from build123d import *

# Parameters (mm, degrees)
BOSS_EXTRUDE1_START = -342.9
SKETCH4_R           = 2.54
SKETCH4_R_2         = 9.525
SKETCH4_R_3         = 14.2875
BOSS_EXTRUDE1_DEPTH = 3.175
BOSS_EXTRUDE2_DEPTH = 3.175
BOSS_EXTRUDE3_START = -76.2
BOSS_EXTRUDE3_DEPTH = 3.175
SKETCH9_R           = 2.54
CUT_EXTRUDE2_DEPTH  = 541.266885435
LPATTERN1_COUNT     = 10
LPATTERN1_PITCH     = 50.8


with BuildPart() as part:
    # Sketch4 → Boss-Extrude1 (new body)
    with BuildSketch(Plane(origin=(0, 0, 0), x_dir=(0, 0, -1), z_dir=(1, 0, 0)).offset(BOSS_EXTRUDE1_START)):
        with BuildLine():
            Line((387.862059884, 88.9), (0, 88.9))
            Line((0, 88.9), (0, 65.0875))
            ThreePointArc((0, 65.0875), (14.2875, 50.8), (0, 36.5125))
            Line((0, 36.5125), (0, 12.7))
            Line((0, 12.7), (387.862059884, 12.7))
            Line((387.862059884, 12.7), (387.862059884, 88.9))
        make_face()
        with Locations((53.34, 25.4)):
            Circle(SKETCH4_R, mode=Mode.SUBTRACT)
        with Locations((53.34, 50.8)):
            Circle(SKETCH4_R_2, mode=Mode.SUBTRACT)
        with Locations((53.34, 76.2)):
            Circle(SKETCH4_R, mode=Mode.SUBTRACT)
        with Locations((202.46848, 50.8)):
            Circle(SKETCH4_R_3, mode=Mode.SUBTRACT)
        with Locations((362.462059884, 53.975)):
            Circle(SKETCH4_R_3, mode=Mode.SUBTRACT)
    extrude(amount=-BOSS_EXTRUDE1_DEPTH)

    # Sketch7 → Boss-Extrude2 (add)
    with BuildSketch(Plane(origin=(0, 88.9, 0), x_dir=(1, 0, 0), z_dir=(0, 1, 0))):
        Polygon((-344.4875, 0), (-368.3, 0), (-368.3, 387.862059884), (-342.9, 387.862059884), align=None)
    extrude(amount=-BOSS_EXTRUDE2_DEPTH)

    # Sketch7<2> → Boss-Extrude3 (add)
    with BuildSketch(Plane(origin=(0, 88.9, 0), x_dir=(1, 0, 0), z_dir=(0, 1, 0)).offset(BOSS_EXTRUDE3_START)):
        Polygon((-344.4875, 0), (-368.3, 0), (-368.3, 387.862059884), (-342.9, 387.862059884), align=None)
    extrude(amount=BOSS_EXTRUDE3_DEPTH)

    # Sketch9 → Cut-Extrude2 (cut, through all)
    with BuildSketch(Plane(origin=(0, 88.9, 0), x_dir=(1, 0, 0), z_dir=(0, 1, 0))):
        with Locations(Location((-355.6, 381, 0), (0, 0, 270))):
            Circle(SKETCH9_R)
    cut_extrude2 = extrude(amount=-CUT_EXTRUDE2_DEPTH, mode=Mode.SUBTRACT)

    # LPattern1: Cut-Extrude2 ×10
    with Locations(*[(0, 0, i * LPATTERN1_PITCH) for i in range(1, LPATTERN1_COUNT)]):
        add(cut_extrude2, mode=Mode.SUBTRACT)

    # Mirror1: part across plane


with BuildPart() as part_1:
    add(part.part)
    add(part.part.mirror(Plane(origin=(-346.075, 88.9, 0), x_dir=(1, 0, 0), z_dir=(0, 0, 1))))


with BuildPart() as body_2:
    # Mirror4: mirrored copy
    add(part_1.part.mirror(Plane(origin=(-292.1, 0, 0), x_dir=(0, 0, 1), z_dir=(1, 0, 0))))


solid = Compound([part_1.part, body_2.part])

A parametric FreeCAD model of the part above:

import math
import FreeCAD as App
import Part
import Sketcher
from FreeCAD import Vector
Q = App.Units.Quantity

doc = App.newDocument("Part")
body = doc.addObject("PartDesign::Body", "Body")

# Sketch on YZ plane
sketch1 = body.newObject("Sketcher::SketchObject", "Sketch")
sketch1.AttachmentSupport = (doc.getObject("YZ_Plane"), [""])
sketch1.MapMode = "FlatFace"
sketch1.AttachmentOffset = App.Placement(Vector(0, 0, -13.5 * 25.4), App.Rotation())
sketch1.addGeometry([
    Part.LineSegment(Vector(88.9, -387.9, 0), Vector(88.9, 0, 0)),  # 0
    Part.LineSegment(Vector(88.9, 0, 0), Vector(65.1, 0, 0)),  # 1
    Part.ArcOfCircle(Part.Circle(Vector(50.8, 0, 0), Vector(0, 0, 1), 14.3), math.radians(180), math.radians(360)),  # 2
    Part.LineSegment(Vector(36.5, 0, 0), Vector(12.7, 0, 0)),  # 3
    Part.LineSegment(Vector(12.7, 0, 0), Vector(12.7, -387.9, 0)),  # 4
    Part.LineSegment(Vector(12.7, -387.9, 0), Vector(88.9, -387.9, 0)),  # 5
    Part.Circle(Vector(25.4, -53.3, 0), Vector(0, 0, 1), 2.5),  # 6
    Part.Circle(Vector(50.8, -53.3, 0), Vector(0, 0, 1), 9.5),  # 7
    Part.Circle(Vector(50.8, -202.5, 0), Vector(0, 0, 1), 14.3),  # 8
    Part.Circle(Vector(76.2, -53.3, 0), Vector(0, 0, 1), 2.5),  # 9
    Part.Circle(Vector(54, -362.5, 0), Vector(0, 0, 1), 14.3),  # 10
], False)
sketch1.addConstraint([
    Sketcher.Constraint("Coincident", 0, 2, 1, 1),
    Sketcher.Constraint("Coincident", 1, 2, 2, 2),
    Sketcher.Constraint("Coincident", 2, 1, 3, 1),
    Sketcher.Constraint("Coincident", 3, 2, 4, 1),
    Sketcher.Constraint("Coincident", 4, 2, 5, 1),
    Sketcher.Constraint("Coincident", 5, 2, 0, 1),
    Sketcher.Constraint("Vertical", 0),
    Sketcher.Constraint("Horizontal", 1),
    Sketcher.Constraint("Horizontal", 3),
    Sketcher.Constraint("Vertical", 4),
    Sketcher.Constraint("Horizontal", 5),
    Sketcher.Constraint("Equal", 2, 8),
    Sketcher.Constraint("Equal", 6, 9),
    Sketcher.Constraint("Equal", 8, 10),
    Sketcher.Constraint("PointOnObject", 2, 3, -1),
    Sketcher.Constraint("PointOnObject", 0, 2, -1),
    Sketcher.Constraint("PointOnObject", 2, 1, -1),
    Sketcher.Constraint("Horizontal", 6, 3, 7, 3),
    Sketcher.Constraint("Horizontal", 7, 3, 9, 3),
    Sketcher.Constraint("Vertical", 2, 3, 7, 3),
    Sketcher.Constraint("Vertical", 7, 3, 8, 3),
    Sketcher.Constraint("Equal", 1, 3),
    Sketcher.Constraint("Diameter", 6, Q("0.2 in")),
    Sketcher.Constraint("Diameter", 7, Q("0.75 in")),
    Sketcher.Constraint("DistanceX", 5, 1, 5, 2, Q("3 in")),
    Sketcher.Constraint("Diameter", 8, Q("1.125 in")),
    Sketcher.Constraint("DistanceX", -1, 1, 2, 3, Q("2 in")),
    Sketcher.Constraint("DistanceX", -1, 1, 6, 3, Q("1 in")),
    Sketcher.Constraint("DistanceX", -1, 1, 9, 3, Q("3 in")),
    Sketcher.Constraint("DistanceY", 4, 2, 10, 3, Q("1 in")),
    Sketcher.Constraint("DistanceY", 6, 3, -1, 1, Q("2.1 in")),
    Sketcher.Constraint("DistanceX", -1, 1, 10, 3, Q("2.125 in")),
    Sketcher.Constraint("DistanceY", 8, 3, -1, 1, Q("7.9712 in")),
    Sketcher.Constraint("DistanceY", 0, 1, 0, 2, 387.86206),
])
pad1 = body.newObject("PartDesign::Pad", "Pad")
pad1.Profile = sketch1
pad1.Length = Q("0.125 in")
pad1.Reversed = True

# Sketch on XZ plane
sketch2 = body.newObject("Sketcher::SketchObject", "Sketch001")
sketch2.AttachmentSupport = (doc.getObject("XZ_Plane"), [""])
sketch2.MapMode = "FlatFace"
sketch2.AttachmentOffset = App.Placement(Vector(0, 0, -3.5 * 25.4), App.Rotation())
sketch2.addGeometry([
    Part.LineSegment(Vector(-368, 0, 0), Vector(-344, 0, 0)),
    Part.LineSegment(Vector(-344, 0, 0), Vector(-343, -388, 0)),
    Part.LineSegment(Vector(-343, -388, 0), Vector(-368, -388, 0)),
    Part.LineSegment(Vector(-368, -388, 0), Vector(-368, 0, 0)),
], False)
sketch2.addConstraint([
    Sketcher.Constraint("Coincident", 0, 2, 1, 1),
    Sketcher.Constraint("Coincident", 1, 2, 2, 1),
    Sketcher.Constraint("Coincident", 2, 2, 3, 1),
    Sketcher.Constraint("Coincident", 3, 2, 0, 1),
    Sketcher.Constraint("Horizontal", 0),
    Sketcher.Constraint("Horizontal", 2),
    Sketcher.Constraint("Vertical", 3),
    Sketcher.Constraint("PointOnObject", 0, 2, -1),
    Sketcher.Constraint("DistanceX", 2, 2, 2, 1, Q("1 in")),
    Sketcher.Constraint("DistanceX", 1, 2, -1, 1, Q("13.5 in")),
    Sketcher.Constraint("DistanceX", 0, 1, 0, 2, Q("0.9375 in")),
    Sketcher.Constraint("DistanceY", 3, 1, 3, 2, 387.86206),
])
pad2 = body.newObject("PartDesign::Pad", "Pad001")
pad2.Profile = sketch2
pad2.Length = Q("0.125 in")

# Sketch on XZ plane
sketch3 = body.newObject("Sketcher::SketchObject", "Sketch002")
sketch3.AttachmentSupport = (doc.getObject("XZ_Plane"), [""])
sketch3.MapMode = "FlatFace"
sketch3.AttachmentOffset = App.Placement(Vector(0, 0, -0.5 * 25.4), App.Rotation())
sketch3.addGeometry([
    Part.LineSegment(Vector(-368, 0, 0), Vector(-344, 0, 0)),
    Part.LineSegment(Vector(-344, 0, 0), Vector(-343, -388, 0)),
    Part.LineSegment(Vector(-343, -388, 0), Vector(-368, -388, 0)),
    Part.LineSegment(Vector(-368, -388, 0), Vector(-368, 0, 0)),
], False)
sketch3.addConstraint([
    Sketcher.Constraint("Coincident", 0, 2, 1, 1),
    Sketcher.Constraint("Coincident", 1, 2, 2, 1),
    Sketcher.Constraint("Coincident", 2, 2, 3, 1),
    Sketcher.Constraint("Coincident", 3, 2, 0, 1),
    Sketcher.Constraint("Horizontal", 0),
    Sketcher.Constraint("Horizontal", 2),
    Sketcher.Constraint("Vertical", 3),
    Sketcher.Constraint("PointOnObject", 0, 2, -1),
    Sketcher.Constraint("DistanceX", 2, 2, 2, 1, Q("1 in")),
    Sketcher.Constraint("DistanceX", 1, 2, -1, 1, Q("13.5 in")),
    Sketcher.Constraint("DistanceX", 0, 1, 0, 2, Q("0.9375 in")),
    Sketcher.Constraint("DistanceY", 3, 1, 3, 2, 387.86206),
])
pad3 = body.newObject("PartDesign::Pad", "Pad002")
pad3.Profile = sketch3
pad3.Length = Q("0.125 in")
pad3.Reversed = True

# Sketch on XZ plane
sketch4 = body.newObject("Sketcher::SketchObject", "Sketch003")
sketch4.AttachmentSupport = (doc.getObject("XZ_Plane"), [""])
sketch4.MapMode = "FlatFace"
sketch4.AttachmentOffset = App.Placement(Vector(0, 0, -3.5 * 25.4), App.Rotation())
sketch4.addGeometry(Part.Circle(Vector(-355.6, -381, 0), Vector(0, 0, 1), 2.5), False)
sketch4.addConstraint([
    Sketcher.Constraint("Diameter", 0, Q("0.2 in")),
    Sketcher.Constraint("DistanceX", 0, 3, -1, 1, Q("14 in")),
    Sketcher.Constraint("DistanceY", 0, 3, -1, 1, Q("15 in")),
])
pocket1 = body.newObject("PartDesign::Pocket", "Pocket")
pocket1.Profile = sketch4
pocket1.Type = "ThroughAll"
pocket1.Reversed = True
doc.recompute()

linearpattern = body.newObject("PartDesign::LinearPattern", "LinearPattern")
linearpattern.Originals = [pocket1]
linearpattern.Direction = (doc.getObject("Z_Axis"), [""])
linearpattern.Mode = "offset"
linearpattern.Offset = Q("2 in")
linearpattern.Occurrences = 10
body.Tip = linearpattern
body2 = doc.addObject("PartDesign::Body", "Body001")
doc.recompute()

body2.BaseFeature = body
doc.recompute()

mirroring = doc.addObject("Part::Mirroring", "Mirroring")
mirroring.Source = body
mirroring.Base = Vector(-346.075, 88.9, 0)
mirroring.Normal = Vector(0, 0, 1)
body3 = doc.addObject("PartDesign::Body", "Body002")
body3.BaseFeature = mirroring
boolean = body2.newObject("PartDesign::Boolean", "Boolean")
boolean.Type = "Fuse"
boolean.addObjects([body3])
doc.recompute()
body4 = doc.addObject("PartDesign::Body", "Body003")
doc.recompute()

mirroring2 = doc.addObject("Part::Mirroring", "Mirroring001")
mirroring2.Source = body2
mirroring2.Base = Vector(-292.1, 0, 0)
mirroring2.Normal = Vector(1, 0, 0)
body4.BaseFeature = mirroring2
doc.recompute()
mirroring.Visibility = False
mirroring2.Visibility = False

doc.recompute()
